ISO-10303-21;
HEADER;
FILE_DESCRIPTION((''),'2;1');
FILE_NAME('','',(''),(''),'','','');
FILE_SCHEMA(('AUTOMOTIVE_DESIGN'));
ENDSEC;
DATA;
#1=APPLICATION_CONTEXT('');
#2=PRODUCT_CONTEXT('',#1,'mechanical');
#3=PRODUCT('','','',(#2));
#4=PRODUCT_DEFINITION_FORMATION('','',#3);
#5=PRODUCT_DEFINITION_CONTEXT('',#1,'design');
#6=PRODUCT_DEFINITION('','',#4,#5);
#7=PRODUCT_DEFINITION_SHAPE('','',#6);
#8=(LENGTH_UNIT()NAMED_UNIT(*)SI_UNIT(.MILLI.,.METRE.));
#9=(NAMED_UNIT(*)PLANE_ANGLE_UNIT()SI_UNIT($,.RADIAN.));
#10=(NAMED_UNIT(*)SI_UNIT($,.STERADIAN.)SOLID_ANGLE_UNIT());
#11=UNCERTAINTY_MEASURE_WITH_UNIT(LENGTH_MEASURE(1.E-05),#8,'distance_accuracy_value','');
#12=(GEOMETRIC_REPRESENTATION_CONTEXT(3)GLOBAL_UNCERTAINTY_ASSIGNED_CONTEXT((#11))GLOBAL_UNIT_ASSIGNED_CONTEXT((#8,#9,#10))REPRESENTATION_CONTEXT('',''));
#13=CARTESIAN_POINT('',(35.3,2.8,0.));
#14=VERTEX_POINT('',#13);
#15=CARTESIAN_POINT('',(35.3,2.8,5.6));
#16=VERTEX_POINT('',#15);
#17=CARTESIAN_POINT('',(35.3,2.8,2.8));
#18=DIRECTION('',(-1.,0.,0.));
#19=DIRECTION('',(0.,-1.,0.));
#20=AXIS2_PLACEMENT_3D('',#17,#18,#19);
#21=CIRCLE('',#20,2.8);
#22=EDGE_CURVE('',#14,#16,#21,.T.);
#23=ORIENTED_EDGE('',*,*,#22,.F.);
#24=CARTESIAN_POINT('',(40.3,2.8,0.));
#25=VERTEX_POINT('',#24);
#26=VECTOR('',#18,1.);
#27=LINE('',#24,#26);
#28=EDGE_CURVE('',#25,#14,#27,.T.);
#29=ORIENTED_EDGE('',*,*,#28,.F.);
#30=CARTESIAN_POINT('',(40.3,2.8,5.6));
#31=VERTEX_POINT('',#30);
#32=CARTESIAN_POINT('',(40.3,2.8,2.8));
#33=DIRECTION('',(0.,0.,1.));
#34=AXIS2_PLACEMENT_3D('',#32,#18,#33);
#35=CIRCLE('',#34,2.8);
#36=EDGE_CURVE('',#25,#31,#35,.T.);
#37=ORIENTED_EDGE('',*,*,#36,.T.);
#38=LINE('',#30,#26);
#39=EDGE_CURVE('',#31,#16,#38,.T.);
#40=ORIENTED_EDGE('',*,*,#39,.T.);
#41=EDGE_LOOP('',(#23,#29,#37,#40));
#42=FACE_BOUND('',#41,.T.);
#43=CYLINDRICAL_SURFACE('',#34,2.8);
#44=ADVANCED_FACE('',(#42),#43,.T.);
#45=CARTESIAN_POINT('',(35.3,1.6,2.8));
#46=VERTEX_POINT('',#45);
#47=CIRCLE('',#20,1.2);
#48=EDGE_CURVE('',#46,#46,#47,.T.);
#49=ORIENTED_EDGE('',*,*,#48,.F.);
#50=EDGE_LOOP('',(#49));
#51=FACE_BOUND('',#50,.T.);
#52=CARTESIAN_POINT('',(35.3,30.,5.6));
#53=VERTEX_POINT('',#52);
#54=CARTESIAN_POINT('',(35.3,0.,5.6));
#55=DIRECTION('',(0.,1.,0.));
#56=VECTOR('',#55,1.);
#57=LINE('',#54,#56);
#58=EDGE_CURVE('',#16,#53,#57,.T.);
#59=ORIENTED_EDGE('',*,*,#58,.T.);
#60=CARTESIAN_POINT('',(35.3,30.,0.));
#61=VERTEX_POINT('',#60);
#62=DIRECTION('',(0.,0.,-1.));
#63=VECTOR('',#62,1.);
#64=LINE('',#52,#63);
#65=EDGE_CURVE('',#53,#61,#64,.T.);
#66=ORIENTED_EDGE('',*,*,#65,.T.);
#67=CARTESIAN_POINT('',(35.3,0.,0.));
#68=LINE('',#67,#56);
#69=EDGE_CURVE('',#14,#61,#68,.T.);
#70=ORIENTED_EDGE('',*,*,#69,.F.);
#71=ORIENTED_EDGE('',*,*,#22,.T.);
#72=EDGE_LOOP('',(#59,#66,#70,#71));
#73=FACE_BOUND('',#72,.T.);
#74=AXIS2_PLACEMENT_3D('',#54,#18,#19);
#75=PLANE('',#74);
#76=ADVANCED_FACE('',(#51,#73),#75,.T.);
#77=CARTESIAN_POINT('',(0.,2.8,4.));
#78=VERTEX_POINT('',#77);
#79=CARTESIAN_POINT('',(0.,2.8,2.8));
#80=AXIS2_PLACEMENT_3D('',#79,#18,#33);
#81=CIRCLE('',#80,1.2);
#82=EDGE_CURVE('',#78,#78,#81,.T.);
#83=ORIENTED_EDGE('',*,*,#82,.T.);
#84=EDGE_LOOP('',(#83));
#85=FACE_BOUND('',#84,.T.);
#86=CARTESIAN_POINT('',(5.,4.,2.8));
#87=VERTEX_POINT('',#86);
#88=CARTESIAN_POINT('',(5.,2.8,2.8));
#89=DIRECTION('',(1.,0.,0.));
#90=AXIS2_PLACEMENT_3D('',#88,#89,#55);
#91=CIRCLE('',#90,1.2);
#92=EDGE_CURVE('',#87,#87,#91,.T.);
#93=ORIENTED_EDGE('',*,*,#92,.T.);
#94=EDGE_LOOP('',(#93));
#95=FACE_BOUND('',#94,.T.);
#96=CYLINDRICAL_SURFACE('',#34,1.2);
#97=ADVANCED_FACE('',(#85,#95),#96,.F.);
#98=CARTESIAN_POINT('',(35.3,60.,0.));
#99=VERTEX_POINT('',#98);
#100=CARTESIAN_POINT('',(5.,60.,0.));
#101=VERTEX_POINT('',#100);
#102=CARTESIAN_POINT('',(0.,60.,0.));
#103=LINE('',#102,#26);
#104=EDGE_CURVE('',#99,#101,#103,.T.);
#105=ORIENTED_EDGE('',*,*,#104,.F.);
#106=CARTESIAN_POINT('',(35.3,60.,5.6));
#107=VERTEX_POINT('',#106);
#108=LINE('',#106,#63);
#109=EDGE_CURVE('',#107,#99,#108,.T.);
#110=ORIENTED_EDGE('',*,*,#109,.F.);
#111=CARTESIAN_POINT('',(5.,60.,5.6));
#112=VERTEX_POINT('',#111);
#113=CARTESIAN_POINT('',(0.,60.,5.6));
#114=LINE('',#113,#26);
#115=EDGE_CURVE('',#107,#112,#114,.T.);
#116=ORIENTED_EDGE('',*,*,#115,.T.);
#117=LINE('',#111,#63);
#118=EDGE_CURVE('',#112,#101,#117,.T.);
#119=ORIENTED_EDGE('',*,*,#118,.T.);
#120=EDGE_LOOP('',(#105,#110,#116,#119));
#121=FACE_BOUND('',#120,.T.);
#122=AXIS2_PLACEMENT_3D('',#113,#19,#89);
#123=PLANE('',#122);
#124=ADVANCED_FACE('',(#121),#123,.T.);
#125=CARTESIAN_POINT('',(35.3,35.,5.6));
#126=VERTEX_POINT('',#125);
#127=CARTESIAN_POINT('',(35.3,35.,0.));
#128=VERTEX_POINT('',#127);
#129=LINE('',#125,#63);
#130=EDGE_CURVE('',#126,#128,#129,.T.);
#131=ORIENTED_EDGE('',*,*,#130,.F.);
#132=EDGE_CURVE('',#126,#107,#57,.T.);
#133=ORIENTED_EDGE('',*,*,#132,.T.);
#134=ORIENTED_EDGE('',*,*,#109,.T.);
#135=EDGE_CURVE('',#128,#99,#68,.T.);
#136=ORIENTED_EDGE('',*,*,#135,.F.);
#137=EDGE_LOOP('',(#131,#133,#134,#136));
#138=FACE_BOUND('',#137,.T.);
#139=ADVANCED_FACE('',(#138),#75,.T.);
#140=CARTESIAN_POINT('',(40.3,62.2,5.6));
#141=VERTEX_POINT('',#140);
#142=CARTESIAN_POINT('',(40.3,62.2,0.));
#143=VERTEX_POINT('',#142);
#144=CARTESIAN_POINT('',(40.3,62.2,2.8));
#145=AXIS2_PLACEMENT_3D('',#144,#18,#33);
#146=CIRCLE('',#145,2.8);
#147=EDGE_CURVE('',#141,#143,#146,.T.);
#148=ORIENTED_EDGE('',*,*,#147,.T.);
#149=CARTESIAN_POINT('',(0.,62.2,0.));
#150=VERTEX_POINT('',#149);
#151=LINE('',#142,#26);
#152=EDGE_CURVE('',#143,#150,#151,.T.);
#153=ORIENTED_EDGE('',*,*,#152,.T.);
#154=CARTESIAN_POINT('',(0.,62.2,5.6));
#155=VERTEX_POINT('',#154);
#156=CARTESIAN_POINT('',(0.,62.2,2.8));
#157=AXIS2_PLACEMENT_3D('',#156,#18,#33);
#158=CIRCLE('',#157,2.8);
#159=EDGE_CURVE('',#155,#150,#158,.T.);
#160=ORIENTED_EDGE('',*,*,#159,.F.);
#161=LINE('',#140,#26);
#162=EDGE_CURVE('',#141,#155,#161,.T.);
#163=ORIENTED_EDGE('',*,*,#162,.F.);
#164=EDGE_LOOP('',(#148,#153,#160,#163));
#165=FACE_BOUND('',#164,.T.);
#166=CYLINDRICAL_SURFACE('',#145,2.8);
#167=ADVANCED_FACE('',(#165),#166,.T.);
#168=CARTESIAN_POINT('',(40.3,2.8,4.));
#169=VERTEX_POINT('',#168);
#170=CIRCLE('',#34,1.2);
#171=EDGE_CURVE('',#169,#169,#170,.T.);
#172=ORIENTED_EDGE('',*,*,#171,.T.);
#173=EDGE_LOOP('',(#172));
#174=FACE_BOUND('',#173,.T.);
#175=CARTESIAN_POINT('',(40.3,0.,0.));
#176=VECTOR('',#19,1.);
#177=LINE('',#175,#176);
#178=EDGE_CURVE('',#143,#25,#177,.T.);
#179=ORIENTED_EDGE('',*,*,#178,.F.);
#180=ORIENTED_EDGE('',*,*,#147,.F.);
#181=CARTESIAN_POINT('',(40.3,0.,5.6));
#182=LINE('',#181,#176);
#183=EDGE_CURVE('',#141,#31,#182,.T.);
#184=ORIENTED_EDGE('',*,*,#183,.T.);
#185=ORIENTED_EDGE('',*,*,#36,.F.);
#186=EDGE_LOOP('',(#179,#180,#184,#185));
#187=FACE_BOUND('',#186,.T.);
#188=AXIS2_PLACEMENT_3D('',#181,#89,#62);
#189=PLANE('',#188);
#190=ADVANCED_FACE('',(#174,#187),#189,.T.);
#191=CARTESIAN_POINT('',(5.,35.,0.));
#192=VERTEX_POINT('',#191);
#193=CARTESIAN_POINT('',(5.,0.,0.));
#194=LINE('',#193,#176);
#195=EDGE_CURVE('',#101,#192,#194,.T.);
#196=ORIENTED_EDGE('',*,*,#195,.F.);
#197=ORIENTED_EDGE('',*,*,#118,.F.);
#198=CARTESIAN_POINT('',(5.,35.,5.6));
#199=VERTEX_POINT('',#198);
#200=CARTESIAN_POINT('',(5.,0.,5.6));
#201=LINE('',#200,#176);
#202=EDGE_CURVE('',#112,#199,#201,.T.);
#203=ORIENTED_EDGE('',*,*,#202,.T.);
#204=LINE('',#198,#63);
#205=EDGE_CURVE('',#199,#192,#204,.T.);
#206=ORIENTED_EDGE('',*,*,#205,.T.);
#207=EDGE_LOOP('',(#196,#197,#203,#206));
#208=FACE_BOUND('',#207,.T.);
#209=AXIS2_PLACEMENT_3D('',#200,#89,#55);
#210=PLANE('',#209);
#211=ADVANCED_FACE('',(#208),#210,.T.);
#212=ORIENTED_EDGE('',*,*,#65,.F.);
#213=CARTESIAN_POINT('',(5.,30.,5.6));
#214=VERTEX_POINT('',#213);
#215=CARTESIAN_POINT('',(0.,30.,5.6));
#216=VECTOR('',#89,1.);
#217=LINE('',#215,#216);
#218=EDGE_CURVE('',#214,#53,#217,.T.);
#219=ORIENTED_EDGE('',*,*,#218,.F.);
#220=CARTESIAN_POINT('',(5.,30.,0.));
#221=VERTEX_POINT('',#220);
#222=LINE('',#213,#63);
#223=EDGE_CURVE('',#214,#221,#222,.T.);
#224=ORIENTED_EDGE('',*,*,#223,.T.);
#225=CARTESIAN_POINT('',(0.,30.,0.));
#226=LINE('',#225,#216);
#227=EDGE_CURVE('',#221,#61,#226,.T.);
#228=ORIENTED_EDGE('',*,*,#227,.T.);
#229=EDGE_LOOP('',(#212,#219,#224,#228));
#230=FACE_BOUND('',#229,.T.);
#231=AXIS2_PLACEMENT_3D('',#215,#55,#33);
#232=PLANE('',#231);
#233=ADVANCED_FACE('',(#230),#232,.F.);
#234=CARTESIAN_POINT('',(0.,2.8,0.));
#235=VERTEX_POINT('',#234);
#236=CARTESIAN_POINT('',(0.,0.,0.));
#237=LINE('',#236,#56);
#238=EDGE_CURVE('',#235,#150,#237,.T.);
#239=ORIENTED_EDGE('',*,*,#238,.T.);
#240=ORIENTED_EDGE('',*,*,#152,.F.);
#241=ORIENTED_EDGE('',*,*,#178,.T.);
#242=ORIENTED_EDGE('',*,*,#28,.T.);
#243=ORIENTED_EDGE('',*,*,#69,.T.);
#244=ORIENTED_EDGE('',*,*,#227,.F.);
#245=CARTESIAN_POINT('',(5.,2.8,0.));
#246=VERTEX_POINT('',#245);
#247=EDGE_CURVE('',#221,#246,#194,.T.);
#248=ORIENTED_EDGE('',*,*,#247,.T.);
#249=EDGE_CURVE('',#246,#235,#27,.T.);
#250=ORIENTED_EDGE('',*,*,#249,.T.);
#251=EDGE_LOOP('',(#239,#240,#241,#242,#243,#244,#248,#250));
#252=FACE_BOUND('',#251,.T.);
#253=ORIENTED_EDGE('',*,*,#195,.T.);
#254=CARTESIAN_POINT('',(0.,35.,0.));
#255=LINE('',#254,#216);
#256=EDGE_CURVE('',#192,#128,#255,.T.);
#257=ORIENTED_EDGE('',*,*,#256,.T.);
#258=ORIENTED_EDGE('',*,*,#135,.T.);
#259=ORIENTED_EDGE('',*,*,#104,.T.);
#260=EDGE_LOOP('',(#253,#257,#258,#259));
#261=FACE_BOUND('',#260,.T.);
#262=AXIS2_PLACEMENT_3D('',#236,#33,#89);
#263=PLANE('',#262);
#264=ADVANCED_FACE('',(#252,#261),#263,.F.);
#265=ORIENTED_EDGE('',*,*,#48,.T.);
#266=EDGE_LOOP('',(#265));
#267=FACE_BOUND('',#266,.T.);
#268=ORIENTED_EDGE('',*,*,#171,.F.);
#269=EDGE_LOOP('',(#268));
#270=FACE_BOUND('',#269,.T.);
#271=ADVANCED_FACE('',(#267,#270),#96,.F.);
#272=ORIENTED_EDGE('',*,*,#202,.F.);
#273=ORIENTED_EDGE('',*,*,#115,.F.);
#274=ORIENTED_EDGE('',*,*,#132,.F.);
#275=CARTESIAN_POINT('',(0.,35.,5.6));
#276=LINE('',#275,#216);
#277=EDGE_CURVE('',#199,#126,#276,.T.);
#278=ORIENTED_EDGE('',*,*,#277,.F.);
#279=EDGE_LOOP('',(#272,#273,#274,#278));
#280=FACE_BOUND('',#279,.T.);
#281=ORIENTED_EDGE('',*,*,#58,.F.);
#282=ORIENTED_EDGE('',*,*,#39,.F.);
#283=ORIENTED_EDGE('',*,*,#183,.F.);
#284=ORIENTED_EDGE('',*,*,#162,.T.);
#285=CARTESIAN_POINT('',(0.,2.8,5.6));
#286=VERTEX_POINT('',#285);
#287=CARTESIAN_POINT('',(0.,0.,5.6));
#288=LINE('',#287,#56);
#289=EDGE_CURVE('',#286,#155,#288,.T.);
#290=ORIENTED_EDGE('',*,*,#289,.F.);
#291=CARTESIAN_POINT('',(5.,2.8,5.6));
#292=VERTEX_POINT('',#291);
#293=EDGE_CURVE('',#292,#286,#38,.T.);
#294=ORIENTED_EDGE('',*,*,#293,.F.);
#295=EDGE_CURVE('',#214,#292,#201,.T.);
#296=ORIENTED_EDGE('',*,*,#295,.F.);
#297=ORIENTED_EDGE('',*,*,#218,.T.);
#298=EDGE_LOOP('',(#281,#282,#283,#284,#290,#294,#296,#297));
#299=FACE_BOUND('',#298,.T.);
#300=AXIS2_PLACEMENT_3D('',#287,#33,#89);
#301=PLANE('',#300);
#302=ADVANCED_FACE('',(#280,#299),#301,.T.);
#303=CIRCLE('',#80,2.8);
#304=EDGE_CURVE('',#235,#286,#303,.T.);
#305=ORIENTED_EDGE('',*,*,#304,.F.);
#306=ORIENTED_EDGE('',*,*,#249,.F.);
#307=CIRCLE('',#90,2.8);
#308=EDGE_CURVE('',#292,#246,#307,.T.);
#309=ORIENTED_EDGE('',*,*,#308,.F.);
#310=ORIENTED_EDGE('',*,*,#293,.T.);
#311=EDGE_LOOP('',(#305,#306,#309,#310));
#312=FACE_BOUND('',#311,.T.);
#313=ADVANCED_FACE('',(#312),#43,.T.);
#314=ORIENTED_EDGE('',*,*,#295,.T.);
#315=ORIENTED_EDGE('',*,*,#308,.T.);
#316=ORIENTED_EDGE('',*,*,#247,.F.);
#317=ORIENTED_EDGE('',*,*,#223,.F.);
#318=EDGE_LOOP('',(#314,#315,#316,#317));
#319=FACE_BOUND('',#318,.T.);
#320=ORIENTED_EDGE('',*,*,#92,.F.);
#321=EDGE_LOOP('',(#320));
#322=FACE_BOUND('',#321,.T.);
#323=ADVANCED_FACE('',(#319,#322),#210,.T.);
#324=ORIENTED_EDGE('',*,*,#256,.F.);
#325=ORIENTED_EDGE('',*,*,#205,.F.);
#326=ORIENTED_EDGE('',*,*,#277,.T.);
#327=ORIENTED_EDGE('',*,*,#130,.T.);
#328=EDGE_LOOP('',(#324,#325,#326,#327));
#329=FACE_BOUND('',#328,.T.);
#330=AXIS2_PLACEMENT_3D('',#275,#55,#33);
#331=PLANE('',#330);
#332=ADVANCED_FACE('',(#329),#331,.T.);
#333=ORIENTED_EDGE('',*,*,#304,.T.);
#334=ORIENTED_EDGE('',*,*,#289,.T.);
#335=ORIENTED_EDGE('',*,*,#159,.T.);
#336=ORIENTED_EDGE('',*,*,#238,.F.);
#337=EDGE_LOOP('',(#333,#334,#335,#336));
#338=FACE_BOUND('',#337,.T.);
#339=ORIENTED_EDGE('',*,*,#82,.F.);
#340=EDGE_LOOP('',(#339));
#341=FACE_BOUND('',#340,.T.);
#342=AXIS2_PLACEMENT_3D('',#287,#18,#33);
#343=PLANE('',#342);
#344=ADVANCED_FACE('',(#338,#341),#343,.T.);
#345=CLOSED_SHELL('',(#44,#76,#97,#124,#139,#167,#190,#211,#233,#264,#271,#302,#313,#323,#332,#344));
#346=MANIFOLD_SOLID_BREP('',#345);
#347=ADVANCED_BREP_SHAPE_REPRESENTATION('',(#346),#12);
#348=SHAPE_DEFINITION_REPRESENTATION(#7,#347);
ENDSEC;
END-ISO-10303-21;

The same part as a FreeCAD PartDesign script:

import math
import FreeCAD as App
import Part
import Sketcher
from FreeCAD import Vector
Q = App.Units.Quantity

doc = App.newDocument("Part")
body = doc.addObject("PartDesign::Body", "Body")

# Sketch on XY plane
sketch1 = body.newObject("Sketcher::SketchObject", "Sketch")
sketch1.AttachmentSupport = (doc.getObject("XY_Plane"), [""])
sketch1.MapMode = "FlatFace"
sketch1.addGeometry(Part.LineSegment(Vector(0, 0, 0), Vector(5, 0, 0)), False)
sketch1.addGeometry(Part.LineSegment(Vector(5, 0, 0), Vector(5, 30, 0)), False)
sketch1.addGeometry(Part.LineSegment(Vector(5, 30, 0), Vector(35, 30, 0)), False)
sketch1.addGeometry(Part.LineSegment(Vector(35, 30, 0), Vector(35, 0, 0)), False)
sketch1.addGeometry(Part.LineSegment(Vector(35, 0, 0), Vector(40, 0, 0)), False)
sketch1.addGeometry(Part.LineSegment(Vector(40, 0, 0), Vector(40, 65, 0)), False)
sketch1.addGeometry(Part.LineSegment(Vector(40, 65, 0), Vector(0, 65, 0)), False)
sketch1.addGeometry(Part.LineSegment(Vector(0, 65, 0), Vector(0, 0, 0)), False)
sketch1.addGeometry(Part.LineSegment(Vector(35, 60, 0), Vector(35, 35, 0)), False)
sketch1.addGeometry(Part.LineSegment(Vector(35, 35, 0), Vector(5, 35, 0)), False)
sketch1.addGeometry(Part.LineSegment(Vector(5, 35, 0), Vector(5, 60, 0)), False)
sketch1.addGeometry(Part.LineSegment(Vector(5, 60, 0), Vector(35, 60, 0)), False)
sketch1.addConstraint(Sketcher.Constraint("Coincident", 0, 2, 1, 1))
sketch1.addConstraint(Sketcher.Constraint("Coincident", 1, 2, 2, 1))
sketch1.addConstraint(Sketcher.Constraint("Coincident", 2, 2, 3, 1))
sketch1.addConstraint(Sketcher.Constraint("Coincident", 3, 2, 4, 1))
sketch1.addConstraint(Sketcher.Constraint("Coincident", 4, 2, 5, 1))
sketch1.addConstraint(Sketcher.Constraint("Coincident", 5, 2, 6, 1))
sketch1.addConstraint(Sketcher.Constraint("Coincident", 6, 2, 7, 1))
sketch1.addConstraint(Sketcher.Constraint("Coincident", 7, 2, 0, 1))
sketch1.addConstraint(Sketcher.Constraint("Coincident", 8, 2, 9, 1))
sketch1.addConstraint(Sketcher.Constraint("Coincident", 9, 2, 10, 1))
sketch1.addConstraint(Sketcher.Constraint("Coincident", 10, 2, 11, 1))
sketch1.addConstraint(Sketcher.Constraint("Coincident", 11, 2, 8, 1))
sketch1.addConstraint(Sketcher.Constraint("Horizontal", 0))
sketch1.addConstraint(Sketcher.Constraint("Vertical", 1))
sketch1.addConstraint(Sketcher.Constraint("Horizontal", 2))
sketch1.addConstraint(Sketcher.Constraint("Vertical", 3))
sketch1.addConstraint(Sketcher.Constraint("Horizontal", 4))
sketch1.addConstraint(Sketcher.Constraint("Vertical", 5))
sketch1.addConstraint(Sketcher.Constraint("Horizontal", 6))
sketch1.addConstraint(Sketcher.Constraint("Vertical", 7))
sketch1.addConstraint(Sketcher.Constraint("Vertical", 8))
sketch1.addConstraint(Sketcher.Constraint("Horizontal", 9))
sketch1.addConstraint(Sketcher.Constraint("Vertical", 10))
sketch1.addConstraint(Sketcher.Constraint("Horizontal", 11))
sketch1.addConstraint(Sketcher.Constraint("Coincident", 7, 2, -1, 1))
sketch1.addConstraint(Sketcher.Constraint("PointOnObject", 3, 2, -1))
sketch1.addConstraint(Sketcher.Constraint("Vertical", 3, 2, 8, 2))
sketch1.addConstraint(Sketcher.Constraint("Vertical", 1, 2, 9, 2))
sketch1.addConstraint(Sketcher.Constraint("Equal", 0, 4))
sketch1.addConstraint(Sketcher.Constraint("DistanceX", 0, 1, 0, 2, Q("5 mm")))
sketch1.addConstraint(Sketcher.Constraint("DistanceY", 1, 1, 1, 2, Q("30 mm")))
sketch1.addConstraint(Sketcher.Constraint("DistanceY", 5, 1, 5, 2, Q("65 mm")))
sketch1.addConstraint(Sketcher.Constraint("DistanceY", 8, 2, 8, 1, Q("25 mm")))
sketch1.addConstraint(Sketcher.Constraint("DistanceX", 2, 1, 2, 2, Q("30.3 mm")))
sketch1.addConstraint(Sketcher.Constraint("DistanceY", -1, 1, 8, 2, Q("35 mm")))
pad1 = body.newObject("PartDesign::Pad", "Pad")
pad1.Profile = sketch1
pad1.Length = 5.6

# Sketch on YZ plane
sketch2 = body.newObject("Sketcher::SketchObject", "Sketch001")
sketch2.AttachmentSupport = (doc.getObject("YZ_Plane"), [""])
sketch2.MapMode = "FlatFace"
sketch2.addGeometry(Part.LineSegment(Vector(0, 5.6, 0), Vector(2.8, 5.6, 0)), False)
sketch2.addGeometry(Part.ArcOfCircle(Part.Circle(Vector(2.8, 2.8, 0), Vector(0, 0, 1), 2.8), math.radians(90), math.radians(180)), False)
sketch2.addGeometry(Part.LineSegment(Vector(0, 2.8, 0), Vector(0, 5.6, 0)), False)
sketch2.addGeometry(Part.ArcOfCircle(Part.Circle(Vector(2.8, 2.8, 0), Vector(0, 0, 1), 2.8), math.radians(-180), math.radians(-90)), False)
sketch2.addGeometry(Part.LineSegment(Vector(2.8, 0, 0), Vector(0, 0, 0)), False)
sketch2.addGeometry(Part.LineSegment(Vector(0, 0, 0), Vector(0, 2.8, 0)), False)
sketch2.addGeometry(Part.Circle(Vector(2.8, 2.8, 0), Vector(0, 0, 1), 1.2), False)
sketch2.addConstraint(Sketcher.Constraint("Tangent", 0, 2, 1, 1))
sketch2.addConstraint(Sketcher.Constraint("Tangent", 1, 2, 2, 1))
sketch2.addConstraint(Sketcher.Constraint("Coincident", 2, 2, 0, 1))
sketch2.addConstraint(Sketcher.Constraint("Tangent", 3, 2, 4, 1))
sketch2.addConstraint(Sketcher.Constraint("Coincident", 4, 2, 5, 1))
sketch2.addConstraint(Sketcher.Constraint("Tangent", 5, 2, 3, 1))
sketch2.addConstraint(Sketcher.Constraint("Horizontal", 0))
sketch2.addConstraint(Sketcher.Constraint("Vertical", 2))
sketch2.addConstraint(Sketcher.Constraint("Horizontal", 4))
sketch2.addConstraint(Sketcher.Constraint("Vertical", 5))
sketch2.addConstraint(Sketcher.Constraint("Coincident", 4, 2, -1, 1))
sketch2.addConstraint(Sketcher.Constraint("Coincident", 3, 3, 1, 3))
sketch2.addConstraint(Sketcher.Constraint("Coincident", 6, 3, 1, 3))
sketch2.addConstraint(Sketcher.Constraint("Equal", 1, 3))
sketch2.addConstraint(Sketcher.Constraint("Diameter", 6, Q("2.4 mm")))
sketch2.addConstraint(Sketcher.Constraint("Radius", 1, Q("2.8 mm")))
pocket1 = body.newObject("PartDesign::Pocket", "Pocket")
pocket1.Profile = sketch2
pocket1.Type = "ThroughAll"
pocket1.Reversed = True

# Sketch on YZ plane
sketch3 = body.newObject("Sketcher::SketchObject", "Sketch002")
sketch3.AttachmentSupport = (doc.getObject("YZ_Plane"), [""])
sketch3.MapMode = "FlatFace"
sketch3.addGeometry(Part.LineSegment(Vector(65, 0, 0), Vector(62.2, 0, 0)), False)
sketch3.addGeometry(Part.ArcOfCircle(Part.Circle(Vector(62.2, 2.8, 0), Vector(0, 0, 1), 2.8), math.radians(-90), math.radians(0)), False)
sketch3.addGeometry(Part.LineSegment(Vector(65, 2.8, 0), Vector(65, 0, 0)), False)
sketch3.addGeometry(Part.ArcOfCircle(Part.Circle(Vector(62.2, 2.8, 0), Vector(0, 0, 1), 2.8), math.radians(0), math.radians(90)), False)
sketch3.addGeometry(Part.LineSegment(Vector(62.2, 5.6, 0), Vector(65, 5.6, 0)), False)
sketch3.addGeometry(Part.LineSegment(Vector(65, 5.6, 0), Vector(65, 2.8, 0)), False)
sketch3.addConstraint(Sketcher.Constraint("Tangent", 0, 2, 1, 1))
sketch3.addConstraint(Sketcher.Constraint("Tangent", 1, 2, 2, 1))
sketch3.addConstraint(Sketcher.Constraint("Coincident", 2, 2, 0, 1))
sketch3.addConstraint(Sketcher.Constraint("Tangent", 3, 2, 4, 1))
sketch3.addConstraint(Sketcher.Constraint("Coincident", 4, 2, 5, 1))
sketch3.addConstraint(Sketcher.Constraint("Tangent", 5, 2, 3, 1))
sketch3.addConstraint(Sketcher.Constraint("Horizontal", 0))
sketch3.addConstraint(Sketcher.Constraint("Vertical", 2))
sketch3.addConstraint(Sketcher.Constraint("Horizontal", 4))
sketch3.addConstraint(Sketcher.Constraint("Vertical", 5))
sketch3.addConstraint(Sketcher.Constraint("Coincident", 3, 3, 1, 3))
sketch3.addConstraint(Sketcher.Constraint("Equal", 1, 3))
sketch3.addConstraint(Sketcher.Constraint("PointOnObject", 0, 2, -1))
sketch3.addConstraint(Sketcher.Constraint("Radius", 1, Q("2.8 mm")))
sketch3.addConstraint(Sketcher.Constraint("DistanceX", -1, 1, 1, 2, Q("65 mm")))
pocket2 = body.newObject("PartDesign::Pocket", "Pocket001")
pocket2.Profile = sketch3
pocket2.Type = "ThroughAll"
pocket2.Reversed = True

doc.recompute()
